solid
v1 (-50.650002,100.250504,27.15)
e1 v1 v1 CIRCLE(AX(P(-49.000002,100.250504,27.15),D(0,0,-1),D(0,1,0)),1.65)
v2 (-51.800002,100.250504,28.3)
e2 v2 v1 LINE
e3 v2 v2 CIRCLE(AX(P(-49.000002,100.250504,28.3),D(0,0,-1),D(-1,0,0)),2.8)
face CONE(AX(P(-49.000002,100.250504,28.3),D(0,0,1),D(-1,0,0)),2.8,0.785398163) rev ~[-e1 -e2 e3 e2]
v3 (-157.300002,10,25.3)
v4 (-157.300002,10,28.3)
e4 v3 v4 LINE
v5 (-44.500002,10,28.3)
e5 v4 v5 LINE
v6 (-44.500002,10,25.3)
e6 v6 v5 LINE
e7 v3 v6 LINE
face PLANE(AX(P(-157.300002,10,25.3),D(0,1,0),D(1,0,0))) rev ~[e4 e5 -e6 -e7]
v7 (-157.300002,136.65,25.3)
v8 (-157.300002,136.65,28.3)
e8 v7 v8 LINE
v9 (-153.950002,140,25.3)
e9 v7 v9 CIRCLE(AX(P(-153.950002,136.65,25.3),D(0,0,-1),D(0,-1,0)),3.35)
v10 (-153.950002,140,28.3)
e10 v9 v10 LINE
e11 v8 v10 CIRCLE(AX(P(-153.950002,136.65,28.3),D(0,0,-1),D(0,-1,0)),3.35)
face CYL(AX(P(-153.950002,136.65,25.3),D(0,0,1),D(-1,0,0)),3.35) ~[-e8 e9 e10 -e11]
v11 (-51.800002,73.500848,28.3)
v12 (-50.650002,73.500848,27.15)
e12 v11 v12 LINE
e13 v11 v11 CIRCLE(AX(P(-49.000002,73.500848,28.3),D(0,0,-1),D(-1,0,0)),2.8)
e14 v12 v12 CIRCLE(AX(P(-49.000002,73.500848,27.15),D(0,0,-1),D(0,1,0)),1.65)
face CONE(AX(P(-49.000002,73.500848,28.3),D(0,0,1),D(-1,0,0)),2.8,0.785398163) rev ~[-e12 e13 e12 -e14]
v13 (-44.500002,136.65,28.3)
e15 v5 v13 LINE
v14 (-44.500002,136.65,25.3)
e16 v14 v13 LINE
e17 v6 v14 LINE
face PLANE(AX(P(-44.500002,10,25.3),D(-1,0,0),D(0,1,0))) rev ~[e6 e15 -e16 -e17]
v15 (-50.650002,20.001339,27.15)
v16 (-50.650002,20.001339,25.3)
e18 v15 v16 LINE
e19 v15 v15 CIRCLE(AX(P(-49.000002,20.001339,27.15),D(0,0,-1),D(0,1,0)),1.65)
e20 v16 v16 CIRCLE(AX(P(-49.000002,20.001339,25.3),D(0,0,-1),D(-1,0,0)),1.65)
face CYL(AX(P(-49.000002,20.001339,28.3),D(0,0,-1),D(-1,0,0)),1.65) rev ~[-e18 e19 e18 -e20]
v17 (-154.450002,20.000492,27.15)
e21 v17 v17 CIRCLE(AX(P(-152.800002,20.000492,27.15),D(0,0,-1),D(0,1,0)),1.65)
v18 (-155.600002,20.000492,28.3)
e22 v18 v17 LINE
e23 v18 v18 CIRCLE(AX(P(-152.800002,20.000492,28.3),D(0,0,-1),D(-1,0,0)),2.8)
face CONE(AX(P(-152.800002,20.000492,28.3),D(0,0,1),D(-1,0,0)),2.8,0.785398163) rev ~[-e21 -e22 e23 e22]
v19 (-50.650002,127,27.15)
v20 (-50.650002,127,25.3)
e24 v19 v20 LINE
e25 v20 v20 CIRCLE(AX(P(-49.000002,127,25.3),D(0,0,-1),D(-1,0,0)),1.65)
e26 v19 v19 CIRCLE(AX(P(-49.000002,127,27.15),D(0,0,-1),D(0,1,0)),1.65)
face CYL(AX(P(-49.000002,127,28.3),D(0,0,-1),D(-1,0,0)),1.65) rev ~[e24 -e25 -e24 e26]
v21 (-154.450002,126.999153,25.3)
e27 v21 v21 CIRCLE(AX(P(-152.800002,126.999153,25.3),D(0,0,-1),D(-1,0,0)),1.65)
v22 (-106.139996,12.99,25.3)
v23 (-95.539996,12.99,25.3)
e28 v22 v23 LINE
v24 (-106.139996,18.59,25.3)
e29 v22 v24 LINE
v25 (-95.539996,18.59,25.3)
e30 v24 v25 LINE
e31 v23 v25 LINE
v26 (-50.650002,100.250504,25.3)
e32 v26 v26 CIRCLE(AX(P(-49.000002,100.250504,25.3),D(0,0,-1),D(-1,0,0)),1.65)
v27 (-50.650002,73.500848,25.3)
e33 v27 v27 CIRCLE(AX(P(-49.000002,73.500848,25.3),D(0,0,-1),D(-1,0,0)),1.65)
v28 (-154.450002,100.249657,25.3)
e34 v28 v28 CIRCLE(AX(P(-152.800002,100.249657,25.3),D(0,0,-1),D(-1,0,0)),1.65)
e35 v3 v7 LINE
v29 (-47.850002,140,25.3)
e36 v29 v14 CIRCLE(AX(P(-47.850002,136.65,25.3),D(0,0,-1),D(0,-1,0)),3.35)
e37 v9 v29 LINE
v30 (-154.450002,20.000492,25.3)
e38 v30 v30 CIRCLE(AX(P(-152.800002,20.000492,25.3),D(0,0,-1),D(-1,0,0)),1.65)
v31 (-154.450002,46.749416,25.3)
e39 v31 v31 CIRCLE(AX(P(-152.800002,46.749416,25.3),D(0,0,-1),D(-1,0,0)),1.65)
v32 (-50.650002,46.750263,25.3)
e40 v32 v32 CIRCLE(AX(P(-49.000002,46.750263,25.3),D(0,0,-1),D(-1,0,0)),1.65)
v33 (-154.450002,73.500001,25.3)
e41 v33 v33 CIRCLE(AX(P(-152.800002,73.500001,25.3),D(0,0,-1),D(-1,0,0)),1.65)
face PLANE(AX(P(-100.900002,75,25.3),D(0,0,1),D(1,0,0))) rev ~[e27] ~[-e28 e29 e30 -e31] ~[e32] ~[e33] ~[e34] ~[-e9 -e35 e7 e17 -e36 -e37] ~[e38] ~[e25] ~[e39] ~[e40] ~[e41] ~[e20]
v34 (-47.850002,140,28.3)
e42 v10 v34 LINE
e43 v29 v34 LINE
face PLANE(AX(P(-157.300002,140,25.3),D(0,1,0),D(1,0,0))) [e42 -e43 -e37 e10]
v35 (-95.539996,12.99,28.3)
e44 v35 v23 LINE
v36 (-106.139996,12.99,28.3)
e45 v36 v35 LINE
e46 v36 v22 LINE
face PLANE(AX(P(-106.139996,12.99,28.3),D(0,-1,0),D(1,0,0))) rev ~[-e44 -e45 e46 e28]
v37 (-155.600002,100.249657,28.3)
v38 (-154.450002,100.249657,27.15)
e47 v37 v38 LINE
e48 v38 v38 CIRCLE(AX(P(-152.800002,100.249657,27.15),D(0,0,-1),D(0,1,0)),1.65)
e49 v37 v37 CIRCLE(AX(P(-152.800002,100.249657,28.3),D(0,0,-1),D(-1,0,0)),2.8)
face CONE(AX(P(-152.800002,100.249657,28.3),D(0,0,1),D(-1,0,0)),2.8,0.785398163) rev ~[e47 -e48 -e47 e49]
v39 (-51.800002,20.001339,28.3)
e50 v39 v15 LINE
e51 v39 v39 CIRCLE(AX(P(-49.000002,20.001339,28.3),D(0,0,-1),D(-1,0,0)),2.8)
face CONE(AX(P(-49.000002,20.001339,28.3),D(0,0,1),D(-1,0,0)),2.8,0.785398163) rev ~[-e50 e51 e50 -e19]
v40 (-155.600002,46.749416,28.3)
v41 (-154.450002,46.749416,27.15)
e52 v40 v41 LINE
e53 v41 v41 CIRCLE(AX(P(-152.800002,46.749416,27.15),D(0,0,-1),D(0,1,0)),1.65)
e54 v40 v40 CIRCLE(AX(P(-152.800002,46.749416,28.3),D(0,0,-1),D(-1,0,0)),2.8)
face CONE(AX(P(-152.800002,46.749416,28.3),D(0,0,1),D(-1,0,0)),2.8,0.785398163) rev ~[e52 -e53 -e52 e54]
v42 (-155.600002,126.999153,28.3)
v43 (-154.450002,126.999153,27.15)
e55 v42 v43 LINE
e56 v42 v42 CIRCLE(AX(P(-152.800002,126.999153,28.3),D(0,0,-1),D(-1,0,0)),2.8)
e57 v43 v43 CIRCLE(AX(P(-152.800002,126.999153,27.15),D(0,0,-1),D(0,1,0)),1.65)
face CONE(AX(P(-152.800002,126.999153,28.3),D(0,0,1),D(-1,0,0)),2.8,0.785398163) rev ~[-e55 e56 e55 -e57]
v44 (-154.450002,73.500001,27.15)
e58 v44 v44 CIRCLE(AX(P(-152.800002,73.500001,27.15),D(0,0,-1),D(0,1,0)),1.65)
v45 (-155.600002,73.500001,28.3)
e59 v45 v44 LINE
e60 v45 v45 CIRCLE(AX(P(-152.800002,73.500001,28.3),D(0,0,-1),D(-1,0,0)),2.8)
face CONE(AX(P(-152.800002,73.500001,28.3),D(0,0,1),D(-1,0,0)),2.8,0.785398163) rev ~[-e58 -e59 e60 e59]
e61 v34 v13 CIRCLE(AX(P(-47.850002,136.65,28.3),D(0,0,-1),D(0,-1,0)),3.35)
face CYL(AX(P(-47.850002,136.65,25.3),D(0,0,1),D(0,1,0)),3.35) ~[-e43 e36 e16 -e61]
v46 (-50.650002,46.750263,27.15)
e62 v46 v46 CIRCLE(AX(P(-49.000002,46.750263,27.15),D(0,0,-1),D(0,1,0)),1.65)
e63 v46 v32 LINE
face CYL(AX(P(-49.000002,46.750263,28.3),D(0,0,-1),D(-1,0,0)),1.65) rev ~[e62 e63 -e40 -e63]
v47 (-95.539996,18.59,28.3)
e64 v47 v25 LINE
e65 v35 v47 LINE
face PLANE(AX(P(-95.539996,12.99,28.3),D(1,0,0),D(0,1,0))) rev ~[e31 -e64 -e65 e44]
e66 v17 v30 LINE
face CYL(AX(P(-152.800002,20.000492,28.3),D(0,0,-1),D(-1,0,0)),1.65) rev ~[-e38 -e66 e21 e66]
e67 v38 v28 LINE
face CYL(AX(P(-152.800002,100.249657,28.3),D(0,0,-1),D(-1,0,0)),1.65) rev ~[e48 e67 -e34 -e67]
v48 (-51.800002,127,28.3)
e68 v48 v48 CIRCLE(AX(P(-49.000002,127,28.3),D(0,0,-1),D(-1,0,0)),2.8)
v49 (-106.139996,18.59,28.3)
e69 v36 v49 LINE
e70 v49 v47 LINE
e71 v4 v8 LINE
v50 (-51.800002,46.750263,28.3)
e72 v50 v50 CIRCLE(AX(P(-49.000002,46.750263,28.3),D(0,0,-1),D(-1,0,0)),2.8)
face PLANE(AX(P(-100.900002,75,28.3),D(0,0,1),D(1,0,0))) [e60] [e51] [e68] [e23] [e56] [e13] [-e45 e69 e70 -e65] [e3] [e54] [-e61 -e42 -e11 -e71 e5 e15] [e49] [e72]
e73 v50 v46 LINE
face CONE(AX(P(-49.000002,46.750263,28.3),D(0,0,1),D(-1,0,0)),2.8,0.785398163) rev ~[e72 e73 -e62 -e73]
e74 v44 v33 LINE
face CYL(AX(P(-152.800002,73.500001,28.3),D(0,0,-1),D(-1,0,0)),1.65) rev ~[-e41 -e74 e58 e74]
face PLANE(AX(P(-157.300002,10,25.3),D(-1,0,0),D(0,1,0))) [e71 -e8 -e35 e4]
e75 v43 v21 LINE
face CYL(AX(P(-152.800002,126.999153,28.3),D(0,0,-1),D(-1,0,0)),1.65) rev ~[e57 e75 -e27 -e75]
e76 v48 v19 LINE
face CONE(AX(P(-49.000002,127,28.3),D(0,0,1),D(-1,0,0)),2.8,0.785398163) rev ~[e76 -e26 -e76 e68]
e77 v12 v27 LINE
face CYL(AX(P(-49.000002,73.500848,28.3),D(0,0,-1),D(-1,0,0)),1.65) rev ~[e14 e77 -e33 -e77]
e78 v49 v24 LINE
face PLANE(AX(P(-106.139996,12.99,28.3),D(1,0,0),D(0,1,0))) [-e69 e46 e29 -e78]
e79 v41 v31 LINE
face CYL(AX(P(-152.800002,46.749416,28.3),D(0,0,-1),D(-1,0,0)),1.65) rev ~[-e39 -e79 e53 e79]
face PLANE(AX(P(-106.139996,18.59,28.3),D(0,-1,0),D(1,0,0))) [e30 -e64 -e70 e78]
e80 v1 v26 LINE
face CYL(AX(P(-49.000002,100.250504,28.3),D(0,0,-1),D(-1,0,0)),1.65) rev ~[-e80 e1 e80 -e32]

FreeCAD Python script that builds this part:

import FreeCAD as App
import Part
import Sketcher

V = App.Vector


def edges_at(feature, points):
    """Names of the edges that pass closest to the given points."""
    edges = feature.Shape.Edges
    near = lambda p: min(range(len(edges)), key=lambda i: edges[i].distToShape(Part.Vertex(*p))[0])
    return sorted({f"Edge{near(p) + 1}" for p in points})

doc = App.newDocument("Part")
body = doc.addObject("PartDesign::Body", "Body")

sketch1 = body.newObject("Sketcher::SketchObject", "Sketch")
sketch1.AttachmentSupport = (doc.getObject("XY_Plane"), [""])
sketch1.MapMode = "FlatFace"
sketch1.addGeometry([
    Part.LineSegment(V(-157, 140, 0), V(-157, 10, 0)),
    Part.LineSegment(V(-157, 10, 0), V(-45, 10, 0)),
    Part.LineSegment(V(-45, 10, 0), V(-45, 140, 0)),
    Part.LineSegment(V(-45, 140, 0), V(-157, 140, 0)),
], False)
sketch1.addConstraint([
    Sketcher.Constraint("Coincident", 0, 2, 1, 1),
    Sketcher.Constraint("Coincident", 1, 2, 2, 1),
    Sketcher.Constraint("Coincident", 2, 2, 3, 1),
    Sketcher.Constraint("Coincident", 3, 2, 0, 1),
    Sketcher.Constraint("Vertical", 0),
    Sketcher.Constraint("Horizontal", 1),
    Sketcher.Constraint("Vertical", 2),
    Sketcher.Constraint("Horizontal", 3),
    Sketcher.Constraint("DistanceY", 0, 2, 0, 1, 130.0),
    Sketcher.Constraint("DistanceX", 1, 1, 1, 2, 112.8),
    Sketcher.Constraint("DistanceY", -1, 1, 0, 2, 10.0),
    Sketcher.Constraint("DistanceX", 0, 2, -1, 1, 157.300002),
])
pad1 = body.newObject("PartDesign::Pad", "Pad")
pad1.Profile = sketch1
pad1.Length = 3

sketch2 = body.newObject("Sketcher::SketchObject", "Sketch001")
sketch2.AttachmentSupport = (doc.getObject("XY_Plane"), [""])
sketch2.MapMode = "FlatFace"
sketch2.AttachmentOffset = App.Placement(V(0, 0, 3), App.Rotation())
sketch2.addGeometry([
    Part.Circle(V(-152.8, 20, 0), V(0, 0, 1), 1.6),
    Part.Circle(V(-152.8, 46.7, 0), V(0, 0, 1), 1.6),
    Part.Circle(V(-152.8, 73.5, 0), V(0, 0, 1), 1.6),
    Part.Circle(V(-152.8, 100.2, 0), V(0, 0, 1), 1.6),
    Part.Circle(V(-152.8, 127, 0), V(0, 0, 1), 1.6),
    Part.Circle(V(-49, 20, 0), V(0, 0, 1), 1.6),
    Part.Circle(V(-49, 46.8, 0), V(0, 0, 1), 1.6),
    Part.Circle(V(-49, 73.5, 0), V(0, 0, 1), 1.6),
    Part.Circle(V(-49, 100.3, 0), V(0, 0, 1), 1.6),
    Part.Circle(V(-49, 127, 0), V(0, 0, 1), 1.6),
], False)
sketch2.addConstraint([
    Sketcher.Constraint("Equal", 0, 1),
    Sketcher.Constraint("Equal", 1, 2),
    Sketcher.Constraint("Equal", 2, 3),
    Sketcher.Constraint("Equal", 3, 4),
    Sketcher.Constraint("Equal", 4, 5),
    Sketcher.Constraint("Equal", 5, 6),
    Sketcher.Constraint("Equal", 6, 7),
    Sketcher.Constraint("Equal", 7, 8),
    Sketcher.Constraint("Equal", 8, 9),
    Sketcher.Constraint("Vertical", 0, 3, 1, 3),
    Sketcher.Constraint("Vertical", 1, 3, 2, 3),
    Sketcher.Constraint("Vertical", 2, 3, 3, 3),
    Sketcher.Constraint("Vertical", 3, 3, 4, 3),
    Sketcher.Constraint("Vertical", 5, 3, 6, 3),
    Sketcher.Constraint("Vertical", 6, 3, 7, 3),
    Sketcher.Constraint("Vertical", 7, 3, 8, 3),
    Sketcher.Constraint("Vertical", 8, 3, 9, 3),
    Sketcher.Constraint("Diameter", 0, 3.3),
    Sketcher.Constraint("DistanceY", -1, 1, 9, 3, 127.0),
    Sketcher.Constraint("DistanceX", 0, 3, -1, 1, 152.800002),
    Sketcher.Constraint("DistanceY", -1, 1, 2, 3, 73.500001),
    Sketcher.Constraint("DistanceX", 0, 3, 5, 3, 103.8),
    Sketcher.Constraint("DistanceY", -1, 1, 5, 3, 20.001339),
    Sketcher.Constraint("DistanceY", -1, 1, 7, 3, 73.500848),
    Sketcher.Constraint("DistanceY", 0, 3, 2, 3, 53.499509),
    Sketcher.Constraint("DistanceY", 1, 3, 3, 3, 53.500241),
    Sketcher.Constraint("DistanceY", 0, 3, 4, 3, 106.998661),
    Sketcher.Constraint("DistanceY", 6, 3, 2, 3, 26.749738),
    Sketcher.Constraint("DistanceY", 7, 3, 3, 3, 26.748809),
    Sketcher.Constraint("DistanceY", 6, 3, 8, 3, 53.500241),
])
doc.recompute()
hole = body.newObject("PartDesign::Hole", "Hole")
hole.Profile = sketch2
hole.ThreadType = "None"
hole.Diameter = 3.3
hole.DepthType = "Dimension"
hole.Depth = 3
hole.DrillPoint = "Flat"
hole.HoleCutType = "Countersink"
hole.HoleCutDiameter = 5.6
hole.HoleCutCountersinkAngle = 90

sketch3 = body.newObject("Sketcher::SketchObject", "Sketch002")
sketch3.AttachmentSupport = (doc.getObject("XY_Plane"), [""])
sketch3.MapMode = "FlatFace"
sketch3.AttachmentOffset = App.Placement(V(0, 0, 3), App.Rotation())
sketch3.addGeometry([
    Part.LineSegment(V(-106, 19, 0), V(-106, 13, 0)),
    Part.LineSegment(V(-106, 13, 0), V(-96, 13, 0)),
    Part.LineSegment(V(-96, 13, 0), V(-96, 19, 0)),
    Part.LineSegment(V(-96, 19, 0), V(-106, 19, 0)),
], False)
sketch3.addConstraint([
    Sketcher.Constraint("Coincident", 0, 2, 1, 1),
    Sketcher.Constraint("Coincident", 1, 2, 2, 1),
    Sketcher.Constraint("Coincident", 2, 2, 3, 1),
    Sketcher.Constraint("Coincident", 3, 2, 0, 1),
    Sketcher.Constraint("Vertical", 0),
    Sketcher.Constraint("Horizontal", 1),
    Sketcher.Constraint("Vertical", 2),
    Sketcher.Constraint("Horizontal", 3),
    Sketcher.Constraint("DistanceX", 1, 1, 1, 2, 10.6),
    Sketcher.Constraint("DistanceY", 0, 2, 0, 1, 5.6),
    Sketcher.Constraint("DistanceY", -1, 1, 0, 2, 12.99),
    Sketcher.Constraint("DistanceX", 0, 2, -1, 1, 106.139996),
])
pocket1 = body.newObject("PartDesign::Pocket", "Pocket")
pocket1.Profile = sketch3
pocket1.Length = 5
doc.recompute()

fillet = body.newObject("PartDesign::Fillet", "Fillet")
fillet.Base = (pocket1, edges_at(pocket1, [(-44.5, 140, 1.5), (-157.3, 140, 1.5)]))
fillet.Radius = 3.35
body2 = doc.addObject("PartDesign::Body", "Body001")
doc.recompute()

body.Placement = App.Placement(V(0, 0, 25.3), App.Rotation(V(0, 0, 1), 0))
boolean = body2.newObject("PartDesign::Boolean", "Boolean")
boolean.Type = "Fuse"
boolean.addObjects([body])

doc.recompute()
